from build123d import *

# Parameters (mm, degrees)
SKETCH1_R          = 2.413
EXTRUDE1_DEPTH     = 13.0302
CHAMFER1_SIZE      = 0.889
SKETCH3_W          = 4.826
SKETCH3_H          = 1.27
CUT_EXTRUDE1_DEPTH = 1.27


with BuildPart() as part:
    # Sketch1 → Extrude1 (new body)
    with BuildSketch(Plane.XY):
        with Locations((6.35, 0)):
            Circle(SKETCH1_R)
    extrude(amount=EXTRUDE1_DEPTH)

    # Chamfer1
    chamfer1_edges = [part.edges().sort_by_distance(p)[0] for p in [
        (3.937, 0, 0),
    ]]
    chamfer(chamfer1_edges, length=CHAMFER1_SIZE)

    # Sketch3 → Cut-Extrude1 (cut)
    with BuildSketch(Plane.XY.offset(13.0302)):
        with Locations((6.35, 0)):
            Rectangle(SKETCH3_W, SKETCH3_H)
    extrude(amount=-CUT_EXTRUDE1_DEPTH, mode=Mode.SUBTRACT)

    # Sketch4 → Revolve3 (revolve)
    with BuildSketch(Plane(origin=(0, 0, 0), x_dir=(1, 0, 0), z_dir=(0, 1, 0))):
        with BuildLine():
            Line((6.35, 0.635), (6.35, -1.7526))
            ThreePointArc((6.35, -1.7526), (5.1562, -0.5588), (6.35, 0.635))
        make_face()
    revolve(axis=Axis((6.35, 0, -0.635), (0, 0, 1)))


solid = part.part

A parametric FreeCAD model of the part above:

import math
import FreeCAD as App
import Part
import Sketcher
from FreeCAD import Vector
Q = App.Units.Quantity


def edges_at(feature, points):
    """Names of the edges that pass closest to the given points."""
    edges = feature.Shape.Edges
    near = lambda p: min(range(len(edges)), key=lambda i: edges[i].distToShape(Part.Vertex(*p))[0])
    return sorted({f"Edge{near(p) + 1}" for p in points})

doc = App.newDocument("Part")
body = doc.addObject("PartDesign::Body", "Body")

# Sketch on XY plane
sketch1 = body.newObject("Sketcher::SketchObject", "Sketch")
sketch1.AttachmentSupport = (doc.getObject("XY_Plane"), [""])
sketch1.MapMode = "FlatFace"
sketch1.addGeometry(Part.Circle(Vector(6.35, 0, 0), Vector(0, 0, 1), 2.413), False)
sketch1.addConstraint([
    Sketcher.Constraint("PointOnObject", 0, 3, -1),
    Sketcher.Constraint("Diameter", 0, Q("0.19 in")),
    Sketcher.Constraint("DistanceX", -1, 1, 0, 3, Q("0.25 in")),
])
pad1 = body.newObject("PartDesign::Pad", "Pad")
pad1.Profile = sketch1
pad1.Length = Q("0.513 in")
doc.recompute()

chamfer = body.newObject("PartDesign::Chamfer", "Chamfer")
chamfer.Base = (pad1, edges_at(pad1, [(3.937, 0, 0)]))
chamfer.Size = Q("0.035 in")

# Sketch on XY plane
sketch2 = body.newObject("Sketcher::SketchObject", "Sketch001")
sketch2.AttachmentSupport = (doc.getObject("XY_Plane"), [""])
sketch2.MapMode = "FlatFace"
sketch2.AttachmentOffset = App.Placement(Vector(0, 0, 0.513 * 25.4), App.Rotation())
sketch2.addGeometry([
    Part.LineSegment(Vector(3.937, 0.635, 0), Vector(3.937, -0.635, 0)),
    Part.LineSegment(Vector(3.937, -0.635, 0), Vector(8.763, -0.635, 0)),
    Part.LineSegment(Vector(8.763, -0.635, 0), Vector(8.763, 0.635, 0)),
    Part.LineSegment(Vector(8.763, 0.635, 0), Vector(3.937, 0.635, 0)),
], False)
sketch2.addConstraint([
    Sketcher.Constraint("Coincident", 0, 2, 1, 1),
    Sketcher.Constraint("Coincident", 1, 2, 2, 1),
    Sketcher.Constraint("Coincident", 2, 2, 3, 1),
    Sketcher.Constraint("Coincident", 3, 2, 0, 1),
    Sketcher.Constraint("Vertical", 0),
    Sketcher.Constraint("Horizontal", 1),
    Sketcher.Constraint("Vertical", 2),
    Sketcher.Constraint("Horizontal", 3),
    Sketcher.Constraint("DistanceX", 1, 1, 1, 2, Q("0.19 in")),
    Sketcher.Constraint("DistanceY", 0, 2, 0, 1, Q("0.05 in")),
    Sketcher.Constraint("DistanceX", -1, 1, 0, 2, Q("0.155 in")),
    Sketcher.Constraint("DistanceY", 0, 2, -1, 1, Q("0.025 in")),
])
pocket1 = body.newObject("PartDesign::Pocket", "Pocket")
pocket1.Profile = sketch2
pocket1.Length = Q("0.05 in")

# Sketch on XZ plane
sketch3 = body.newObject("Sketcher::SketchObject", "Sketch002")
sketch3.AttachmentSupport = (doc.getObject("XZ_Plane"), [""])
sketch3.MapMode = "FlatFace"
sketch3.addGeometry([
    Part.LineSegment(Vector(6.35, 1.7526, 0), Vector(6.35, -0.635, 0)),
    Part.ArcOfCircle(Part.Circle(Vector(6.35, 0.5588, 0), Vector(0, 0, 1), 1.1938), math.radians(90), math.radians(270)),
], False)
sketch3.addGeometry(Part.LineSegment(Vector(6.35, -0.635, 0), Vector(6.35, 1.7526, 0)), True)  # axis
sketch3.addConstraint([
    Sketcher.Constraint("Coincident", 0, 1, 1, 1),
    Sketcher.Constraint("Coincident", 1, 2, 0, 2),
    Sketcher.Constraint("Vertical", 0),
    Sketcher.Constraint("Vertical", 2),
    Sketcher.Constraint("Coincident", 2, 1, 1, 2),
    Sketcher.Constraint("Vertical", 1, 3, 0, 1),
    Sketcher.Constraint("Equal", 0, 2),
    Sketcher.Constraint("Radius", 1, Q("0.047 in")),
    Sketcher.Constraint("DistanceX", -1, 1, 1, 3, Q("0.25 in")),
    Sketcher.Constraint("DistanceY", -1, 1, 1, 3, Q("0.022 in")),
])
revolution = body.newObject("PartDesign::Revolution", "Revolution")
revolution.Profile = sketch3
revolution.ReferenceAxis = (sketch3, ["Axis0"])
revolution.Angle = 360

doc.recompute()
